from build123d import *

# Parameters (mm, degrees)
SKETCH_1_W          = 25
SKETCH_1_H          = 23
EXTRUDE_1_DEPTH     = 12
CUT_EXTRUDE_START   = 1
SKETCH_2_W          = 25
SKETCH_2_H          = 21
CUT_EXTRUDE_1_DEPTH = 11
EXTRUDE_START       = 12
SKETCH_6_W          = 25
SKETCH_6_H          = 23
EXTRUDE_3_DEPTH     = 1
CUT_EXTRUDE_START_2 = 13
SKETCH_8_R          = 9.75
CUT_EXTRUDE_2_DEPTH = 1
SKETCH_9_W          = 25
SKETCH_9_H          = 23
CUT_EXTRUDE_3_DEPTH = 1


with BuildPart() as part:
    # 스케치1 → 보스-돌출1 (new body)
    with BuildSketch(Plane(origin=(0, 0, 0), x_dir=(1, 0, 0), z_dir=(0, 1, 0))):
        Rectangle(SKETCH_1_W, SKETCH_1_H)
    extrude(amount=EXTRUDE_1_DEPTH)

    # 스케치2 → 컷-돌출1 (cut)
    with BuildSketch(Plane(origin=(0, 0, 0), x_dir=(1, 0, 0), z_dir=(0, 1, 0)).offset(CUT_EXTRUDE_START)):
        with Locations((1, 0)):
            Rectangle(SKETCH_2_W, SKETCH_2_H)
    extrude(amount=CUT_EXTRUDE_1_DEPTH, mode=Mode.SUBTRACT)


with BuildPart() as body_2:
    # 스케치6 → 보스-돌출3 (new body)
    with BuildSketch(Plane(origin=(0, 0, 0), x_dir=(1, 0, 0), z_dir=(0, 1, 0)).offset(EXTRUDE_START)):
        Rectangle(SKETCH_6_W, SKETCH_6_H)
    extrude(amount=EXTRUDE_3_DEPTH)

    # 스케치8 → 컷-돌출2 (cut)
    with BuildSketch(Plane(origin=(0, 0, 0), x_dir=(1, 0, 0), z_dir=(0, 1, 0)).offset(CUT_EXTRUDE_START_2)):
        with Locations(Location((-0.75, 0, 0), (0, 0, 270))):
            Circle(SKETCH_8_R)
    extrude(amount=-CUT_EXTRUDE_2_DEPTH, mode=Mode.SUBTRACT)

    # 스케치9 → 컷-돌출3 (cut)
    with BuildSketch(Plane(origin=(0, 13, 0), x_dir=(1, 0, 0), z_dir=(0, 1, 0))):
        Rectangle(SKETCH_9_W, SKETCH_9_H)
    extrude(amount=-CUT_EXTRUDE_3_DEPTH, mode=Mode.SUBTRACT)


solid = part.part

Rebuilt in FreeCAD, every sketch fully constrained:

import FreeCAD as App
import Part
import Sketcher
Q = App.Units.Quantity


def add_polygon(sketch, points):
    """Adds a closed chain of lines whose ends are joined by coincident constraints."""
    first, n = sketch.GeometryCount, len(points)
    for a, b in zip(points, points[1:] + points[:1]):
        sketch.addGeometry(Part.LineSegment(App.Vector(*a, 0), App.Vector(*b, 0)), False)
    for i in range(n):
        sketch.addConstraint(Sketcher.Constraint("Coincident", first + i, 2, first + (i + 1) % n, 1))

doc = App.newDocument("Part")
body = doc.addObject("PartDesign::Body", "Body")

# Sketch on XZ plane
sketch1 = body.newObject("Sketcher::SketchObject", "Sketch")
sketch1.AttachmentSupport = (doc.getObject("XZ_Plane"), [""])
sketch1.MapMode = "FlatFace"
add_polygon(sketch1, [(-12.5, -11.5), (-12.5, 11.5), (12.5, 11.5), (12.5, -11.5)])  # lines 0-3
sketch1.addConstraint([
    Sketcher.Constraint("Vertical", 0),
    Sketcher.Constraint("Horizontal", 1),
    Sketcher.Constraint("Vertical", 2),
    Sketcher.Constraint("Horizontal", 3),
    Sketcher.Constraint("Symmetric", 0, 2, 2, 2, -1, 1),
    Sketcher.Constraint("DistanceX", 1, 1, 1, 2, Q("25 mm")),
    Sketcher.Constraint("DistanceY", 0, 1, 0, 2, Q("23 mm")),
])
pad1 = body.newObject("PartDesign::Pad", "Pad")
pad1.Profile = sketch1
pad1.Length = 12
pad1.Reversed = True

# Sketch on XZ plane
sketch2 = body.newObject("Sketcher::SketchObject", "Sketch001")
sketch2.AttachmentSupport = (doc.getObject("XZ_Plane"), [""])
sketch2.MapMode = "FlatFace"
sketch2.AttachmentOffset = App.Placement(App.Vector(0, 0, -1), App.Rotation())
add_polygon(sketch2, [(-11.5, -10.5), (-11.5, 10.5), (13.5, 10.5), (13.5, -10.5)])  # lines 0-3
sketch2.addConstraint([
    Sketcher.Constraint("Vertical", 0),
    Sketcher.Constraint("Horizontal", 1),
    Sketcher.Constraint("Vertical", 2),
    Sketcher.Constraint("Horizontal", 3),
    Sketcher.Constraint("DistanceX", 1, 1, 1, 2, Q("25 mm")),
    Sketcher.Constraint("DistanceY", 0, 1, 0, 2, Q("21 mm")),
    Sketcher.Constraint("DistanceX", 0, 2, -1, 1, Q("11.5 mm")),
    Sketcher.Constraint("DistanceY", -1, 1, 0, 2, Q("10.5 mm")),
])
pocket1 = body.newObject("PartDesign::Pocket", "Pocket")
pocket1.Profile = sketch2
pocket1.Length = 11
body2 = doc.addObject("PartDesign::Body", "Body001")

# Sketch on XZ plane
sketch3 = body2.newObject("Sketcher::SketchObject", "Sketch002")
sketch3.AttachmentSupport = (doc.getObject("XZ_Plane001"), [""])
sketch3.MapMode = "FlatFace"
sketch3.AttachmentOffset = App.Placement(App.Vector(0, 0, -12), App.Rotation())
add_polygon(sketch3, [(-12.5, -11.5), (-12.5, 11.5), (12.5, 11.5), (12.5, -11.5)])  # lines 0-3
sketch3.addConstraint([
    Sketcher.Constraint("Vertical", 0),
    Sketcher.Constraint("Horizontal", 1),
    Sketcher.Constraint("Vertical", 2),
    Sketcher.Constraint("Horizontal", 3),
    Sketcher.Constraint("Symmetric", 0, 2, 2, 2, -1, 1),
    Sketcher.Constraint("DistanceX", 1, 1, 1, 2, Q("25 mm")),
    Sketcher.Constraint("DistanceY", 0, 1, 0, 2, Q("23 mm")),
])
pad2 = body2.newObject("PartDesign::Pad", "Pad001")
pad2.Profile = sketch3
pad2.Length = 1
pad2.Reversed = True

# Sketch on XZ plane
sketch4 = body2.newObject("Sketcher::SketchObject", "Sketch003")
sketch4.AttachmentSupport = (doc.getObject("XZ_Plane001"), [""])
sketch4.MapMode = "FlatFace"
sketch4.AttachmentOffset = App.Placement(App.Vector(0, 0, -13), App.Rotation())
sketch4.addGeometry(Part.Circle(App.Vector(-0.75, 0, 0), App.Vector(0, 0, 1), 9.75), False)
sketch4.addConstraint([
    Sketcher.Constraint("PointOnObject", 0, 3, -1),
    Sketcher.Constraint("Diameter", 0, Q("19.5 mm")),
    Sketcher.Constraint("DistanceX", 0, 3, -1, 1, Q("0.75 mm")),
])
pocket2 = body2.newObject("PartDesign::Pocket", "Pocket001")
pocket2.Profile = sketch4
pocket2.Length = 1
pocket2.Reversed = True

# Sketch on XZ plane
sketch5 = body2.newObject("Sketcher::SketchObject", "Sketch004")
sketch5.AttachmentSupport = (doc.getObject("XZ_Plane001"), [""])
sketch5.MapMode = "FlatFace"
sketch5.AttachmentOffset = App.Placement(App.Vector(0, 0, -13), App.Rotation())
add_polygon(sketch5, [(-12.5, -11.5), (-12.5, 11.5), (12.5, 11.5), (12.5, -11.5)])  # lines 0-3
sketch5.addConstraint([
    Sketcher.Constraint("Vertical", 0),
    Sketcher.Constraint("Horizontal", 1),
    Sketcher.Constraint("Vertical", 2),
    Sketcher.Constraint("Horizontal", 3),
    Sketcher.Constraint("Symmetric", 0, 2, 2, 2, -1, 1),
    Sketcher.Constraint("DistanceX", 1, 1, 1, 2, Q("25 mm")),
    Sketcher.Constraint("DistanceY", 0, 1, 0, 2, Q("23 mm")),
])
pocket3 = body2.newObject("PartDesign::Pocket", "Pocket002")
pocket3.Profile = sketch5
pocket3.Length = 1
pocket3.Reversed = True

doc.recompute()
